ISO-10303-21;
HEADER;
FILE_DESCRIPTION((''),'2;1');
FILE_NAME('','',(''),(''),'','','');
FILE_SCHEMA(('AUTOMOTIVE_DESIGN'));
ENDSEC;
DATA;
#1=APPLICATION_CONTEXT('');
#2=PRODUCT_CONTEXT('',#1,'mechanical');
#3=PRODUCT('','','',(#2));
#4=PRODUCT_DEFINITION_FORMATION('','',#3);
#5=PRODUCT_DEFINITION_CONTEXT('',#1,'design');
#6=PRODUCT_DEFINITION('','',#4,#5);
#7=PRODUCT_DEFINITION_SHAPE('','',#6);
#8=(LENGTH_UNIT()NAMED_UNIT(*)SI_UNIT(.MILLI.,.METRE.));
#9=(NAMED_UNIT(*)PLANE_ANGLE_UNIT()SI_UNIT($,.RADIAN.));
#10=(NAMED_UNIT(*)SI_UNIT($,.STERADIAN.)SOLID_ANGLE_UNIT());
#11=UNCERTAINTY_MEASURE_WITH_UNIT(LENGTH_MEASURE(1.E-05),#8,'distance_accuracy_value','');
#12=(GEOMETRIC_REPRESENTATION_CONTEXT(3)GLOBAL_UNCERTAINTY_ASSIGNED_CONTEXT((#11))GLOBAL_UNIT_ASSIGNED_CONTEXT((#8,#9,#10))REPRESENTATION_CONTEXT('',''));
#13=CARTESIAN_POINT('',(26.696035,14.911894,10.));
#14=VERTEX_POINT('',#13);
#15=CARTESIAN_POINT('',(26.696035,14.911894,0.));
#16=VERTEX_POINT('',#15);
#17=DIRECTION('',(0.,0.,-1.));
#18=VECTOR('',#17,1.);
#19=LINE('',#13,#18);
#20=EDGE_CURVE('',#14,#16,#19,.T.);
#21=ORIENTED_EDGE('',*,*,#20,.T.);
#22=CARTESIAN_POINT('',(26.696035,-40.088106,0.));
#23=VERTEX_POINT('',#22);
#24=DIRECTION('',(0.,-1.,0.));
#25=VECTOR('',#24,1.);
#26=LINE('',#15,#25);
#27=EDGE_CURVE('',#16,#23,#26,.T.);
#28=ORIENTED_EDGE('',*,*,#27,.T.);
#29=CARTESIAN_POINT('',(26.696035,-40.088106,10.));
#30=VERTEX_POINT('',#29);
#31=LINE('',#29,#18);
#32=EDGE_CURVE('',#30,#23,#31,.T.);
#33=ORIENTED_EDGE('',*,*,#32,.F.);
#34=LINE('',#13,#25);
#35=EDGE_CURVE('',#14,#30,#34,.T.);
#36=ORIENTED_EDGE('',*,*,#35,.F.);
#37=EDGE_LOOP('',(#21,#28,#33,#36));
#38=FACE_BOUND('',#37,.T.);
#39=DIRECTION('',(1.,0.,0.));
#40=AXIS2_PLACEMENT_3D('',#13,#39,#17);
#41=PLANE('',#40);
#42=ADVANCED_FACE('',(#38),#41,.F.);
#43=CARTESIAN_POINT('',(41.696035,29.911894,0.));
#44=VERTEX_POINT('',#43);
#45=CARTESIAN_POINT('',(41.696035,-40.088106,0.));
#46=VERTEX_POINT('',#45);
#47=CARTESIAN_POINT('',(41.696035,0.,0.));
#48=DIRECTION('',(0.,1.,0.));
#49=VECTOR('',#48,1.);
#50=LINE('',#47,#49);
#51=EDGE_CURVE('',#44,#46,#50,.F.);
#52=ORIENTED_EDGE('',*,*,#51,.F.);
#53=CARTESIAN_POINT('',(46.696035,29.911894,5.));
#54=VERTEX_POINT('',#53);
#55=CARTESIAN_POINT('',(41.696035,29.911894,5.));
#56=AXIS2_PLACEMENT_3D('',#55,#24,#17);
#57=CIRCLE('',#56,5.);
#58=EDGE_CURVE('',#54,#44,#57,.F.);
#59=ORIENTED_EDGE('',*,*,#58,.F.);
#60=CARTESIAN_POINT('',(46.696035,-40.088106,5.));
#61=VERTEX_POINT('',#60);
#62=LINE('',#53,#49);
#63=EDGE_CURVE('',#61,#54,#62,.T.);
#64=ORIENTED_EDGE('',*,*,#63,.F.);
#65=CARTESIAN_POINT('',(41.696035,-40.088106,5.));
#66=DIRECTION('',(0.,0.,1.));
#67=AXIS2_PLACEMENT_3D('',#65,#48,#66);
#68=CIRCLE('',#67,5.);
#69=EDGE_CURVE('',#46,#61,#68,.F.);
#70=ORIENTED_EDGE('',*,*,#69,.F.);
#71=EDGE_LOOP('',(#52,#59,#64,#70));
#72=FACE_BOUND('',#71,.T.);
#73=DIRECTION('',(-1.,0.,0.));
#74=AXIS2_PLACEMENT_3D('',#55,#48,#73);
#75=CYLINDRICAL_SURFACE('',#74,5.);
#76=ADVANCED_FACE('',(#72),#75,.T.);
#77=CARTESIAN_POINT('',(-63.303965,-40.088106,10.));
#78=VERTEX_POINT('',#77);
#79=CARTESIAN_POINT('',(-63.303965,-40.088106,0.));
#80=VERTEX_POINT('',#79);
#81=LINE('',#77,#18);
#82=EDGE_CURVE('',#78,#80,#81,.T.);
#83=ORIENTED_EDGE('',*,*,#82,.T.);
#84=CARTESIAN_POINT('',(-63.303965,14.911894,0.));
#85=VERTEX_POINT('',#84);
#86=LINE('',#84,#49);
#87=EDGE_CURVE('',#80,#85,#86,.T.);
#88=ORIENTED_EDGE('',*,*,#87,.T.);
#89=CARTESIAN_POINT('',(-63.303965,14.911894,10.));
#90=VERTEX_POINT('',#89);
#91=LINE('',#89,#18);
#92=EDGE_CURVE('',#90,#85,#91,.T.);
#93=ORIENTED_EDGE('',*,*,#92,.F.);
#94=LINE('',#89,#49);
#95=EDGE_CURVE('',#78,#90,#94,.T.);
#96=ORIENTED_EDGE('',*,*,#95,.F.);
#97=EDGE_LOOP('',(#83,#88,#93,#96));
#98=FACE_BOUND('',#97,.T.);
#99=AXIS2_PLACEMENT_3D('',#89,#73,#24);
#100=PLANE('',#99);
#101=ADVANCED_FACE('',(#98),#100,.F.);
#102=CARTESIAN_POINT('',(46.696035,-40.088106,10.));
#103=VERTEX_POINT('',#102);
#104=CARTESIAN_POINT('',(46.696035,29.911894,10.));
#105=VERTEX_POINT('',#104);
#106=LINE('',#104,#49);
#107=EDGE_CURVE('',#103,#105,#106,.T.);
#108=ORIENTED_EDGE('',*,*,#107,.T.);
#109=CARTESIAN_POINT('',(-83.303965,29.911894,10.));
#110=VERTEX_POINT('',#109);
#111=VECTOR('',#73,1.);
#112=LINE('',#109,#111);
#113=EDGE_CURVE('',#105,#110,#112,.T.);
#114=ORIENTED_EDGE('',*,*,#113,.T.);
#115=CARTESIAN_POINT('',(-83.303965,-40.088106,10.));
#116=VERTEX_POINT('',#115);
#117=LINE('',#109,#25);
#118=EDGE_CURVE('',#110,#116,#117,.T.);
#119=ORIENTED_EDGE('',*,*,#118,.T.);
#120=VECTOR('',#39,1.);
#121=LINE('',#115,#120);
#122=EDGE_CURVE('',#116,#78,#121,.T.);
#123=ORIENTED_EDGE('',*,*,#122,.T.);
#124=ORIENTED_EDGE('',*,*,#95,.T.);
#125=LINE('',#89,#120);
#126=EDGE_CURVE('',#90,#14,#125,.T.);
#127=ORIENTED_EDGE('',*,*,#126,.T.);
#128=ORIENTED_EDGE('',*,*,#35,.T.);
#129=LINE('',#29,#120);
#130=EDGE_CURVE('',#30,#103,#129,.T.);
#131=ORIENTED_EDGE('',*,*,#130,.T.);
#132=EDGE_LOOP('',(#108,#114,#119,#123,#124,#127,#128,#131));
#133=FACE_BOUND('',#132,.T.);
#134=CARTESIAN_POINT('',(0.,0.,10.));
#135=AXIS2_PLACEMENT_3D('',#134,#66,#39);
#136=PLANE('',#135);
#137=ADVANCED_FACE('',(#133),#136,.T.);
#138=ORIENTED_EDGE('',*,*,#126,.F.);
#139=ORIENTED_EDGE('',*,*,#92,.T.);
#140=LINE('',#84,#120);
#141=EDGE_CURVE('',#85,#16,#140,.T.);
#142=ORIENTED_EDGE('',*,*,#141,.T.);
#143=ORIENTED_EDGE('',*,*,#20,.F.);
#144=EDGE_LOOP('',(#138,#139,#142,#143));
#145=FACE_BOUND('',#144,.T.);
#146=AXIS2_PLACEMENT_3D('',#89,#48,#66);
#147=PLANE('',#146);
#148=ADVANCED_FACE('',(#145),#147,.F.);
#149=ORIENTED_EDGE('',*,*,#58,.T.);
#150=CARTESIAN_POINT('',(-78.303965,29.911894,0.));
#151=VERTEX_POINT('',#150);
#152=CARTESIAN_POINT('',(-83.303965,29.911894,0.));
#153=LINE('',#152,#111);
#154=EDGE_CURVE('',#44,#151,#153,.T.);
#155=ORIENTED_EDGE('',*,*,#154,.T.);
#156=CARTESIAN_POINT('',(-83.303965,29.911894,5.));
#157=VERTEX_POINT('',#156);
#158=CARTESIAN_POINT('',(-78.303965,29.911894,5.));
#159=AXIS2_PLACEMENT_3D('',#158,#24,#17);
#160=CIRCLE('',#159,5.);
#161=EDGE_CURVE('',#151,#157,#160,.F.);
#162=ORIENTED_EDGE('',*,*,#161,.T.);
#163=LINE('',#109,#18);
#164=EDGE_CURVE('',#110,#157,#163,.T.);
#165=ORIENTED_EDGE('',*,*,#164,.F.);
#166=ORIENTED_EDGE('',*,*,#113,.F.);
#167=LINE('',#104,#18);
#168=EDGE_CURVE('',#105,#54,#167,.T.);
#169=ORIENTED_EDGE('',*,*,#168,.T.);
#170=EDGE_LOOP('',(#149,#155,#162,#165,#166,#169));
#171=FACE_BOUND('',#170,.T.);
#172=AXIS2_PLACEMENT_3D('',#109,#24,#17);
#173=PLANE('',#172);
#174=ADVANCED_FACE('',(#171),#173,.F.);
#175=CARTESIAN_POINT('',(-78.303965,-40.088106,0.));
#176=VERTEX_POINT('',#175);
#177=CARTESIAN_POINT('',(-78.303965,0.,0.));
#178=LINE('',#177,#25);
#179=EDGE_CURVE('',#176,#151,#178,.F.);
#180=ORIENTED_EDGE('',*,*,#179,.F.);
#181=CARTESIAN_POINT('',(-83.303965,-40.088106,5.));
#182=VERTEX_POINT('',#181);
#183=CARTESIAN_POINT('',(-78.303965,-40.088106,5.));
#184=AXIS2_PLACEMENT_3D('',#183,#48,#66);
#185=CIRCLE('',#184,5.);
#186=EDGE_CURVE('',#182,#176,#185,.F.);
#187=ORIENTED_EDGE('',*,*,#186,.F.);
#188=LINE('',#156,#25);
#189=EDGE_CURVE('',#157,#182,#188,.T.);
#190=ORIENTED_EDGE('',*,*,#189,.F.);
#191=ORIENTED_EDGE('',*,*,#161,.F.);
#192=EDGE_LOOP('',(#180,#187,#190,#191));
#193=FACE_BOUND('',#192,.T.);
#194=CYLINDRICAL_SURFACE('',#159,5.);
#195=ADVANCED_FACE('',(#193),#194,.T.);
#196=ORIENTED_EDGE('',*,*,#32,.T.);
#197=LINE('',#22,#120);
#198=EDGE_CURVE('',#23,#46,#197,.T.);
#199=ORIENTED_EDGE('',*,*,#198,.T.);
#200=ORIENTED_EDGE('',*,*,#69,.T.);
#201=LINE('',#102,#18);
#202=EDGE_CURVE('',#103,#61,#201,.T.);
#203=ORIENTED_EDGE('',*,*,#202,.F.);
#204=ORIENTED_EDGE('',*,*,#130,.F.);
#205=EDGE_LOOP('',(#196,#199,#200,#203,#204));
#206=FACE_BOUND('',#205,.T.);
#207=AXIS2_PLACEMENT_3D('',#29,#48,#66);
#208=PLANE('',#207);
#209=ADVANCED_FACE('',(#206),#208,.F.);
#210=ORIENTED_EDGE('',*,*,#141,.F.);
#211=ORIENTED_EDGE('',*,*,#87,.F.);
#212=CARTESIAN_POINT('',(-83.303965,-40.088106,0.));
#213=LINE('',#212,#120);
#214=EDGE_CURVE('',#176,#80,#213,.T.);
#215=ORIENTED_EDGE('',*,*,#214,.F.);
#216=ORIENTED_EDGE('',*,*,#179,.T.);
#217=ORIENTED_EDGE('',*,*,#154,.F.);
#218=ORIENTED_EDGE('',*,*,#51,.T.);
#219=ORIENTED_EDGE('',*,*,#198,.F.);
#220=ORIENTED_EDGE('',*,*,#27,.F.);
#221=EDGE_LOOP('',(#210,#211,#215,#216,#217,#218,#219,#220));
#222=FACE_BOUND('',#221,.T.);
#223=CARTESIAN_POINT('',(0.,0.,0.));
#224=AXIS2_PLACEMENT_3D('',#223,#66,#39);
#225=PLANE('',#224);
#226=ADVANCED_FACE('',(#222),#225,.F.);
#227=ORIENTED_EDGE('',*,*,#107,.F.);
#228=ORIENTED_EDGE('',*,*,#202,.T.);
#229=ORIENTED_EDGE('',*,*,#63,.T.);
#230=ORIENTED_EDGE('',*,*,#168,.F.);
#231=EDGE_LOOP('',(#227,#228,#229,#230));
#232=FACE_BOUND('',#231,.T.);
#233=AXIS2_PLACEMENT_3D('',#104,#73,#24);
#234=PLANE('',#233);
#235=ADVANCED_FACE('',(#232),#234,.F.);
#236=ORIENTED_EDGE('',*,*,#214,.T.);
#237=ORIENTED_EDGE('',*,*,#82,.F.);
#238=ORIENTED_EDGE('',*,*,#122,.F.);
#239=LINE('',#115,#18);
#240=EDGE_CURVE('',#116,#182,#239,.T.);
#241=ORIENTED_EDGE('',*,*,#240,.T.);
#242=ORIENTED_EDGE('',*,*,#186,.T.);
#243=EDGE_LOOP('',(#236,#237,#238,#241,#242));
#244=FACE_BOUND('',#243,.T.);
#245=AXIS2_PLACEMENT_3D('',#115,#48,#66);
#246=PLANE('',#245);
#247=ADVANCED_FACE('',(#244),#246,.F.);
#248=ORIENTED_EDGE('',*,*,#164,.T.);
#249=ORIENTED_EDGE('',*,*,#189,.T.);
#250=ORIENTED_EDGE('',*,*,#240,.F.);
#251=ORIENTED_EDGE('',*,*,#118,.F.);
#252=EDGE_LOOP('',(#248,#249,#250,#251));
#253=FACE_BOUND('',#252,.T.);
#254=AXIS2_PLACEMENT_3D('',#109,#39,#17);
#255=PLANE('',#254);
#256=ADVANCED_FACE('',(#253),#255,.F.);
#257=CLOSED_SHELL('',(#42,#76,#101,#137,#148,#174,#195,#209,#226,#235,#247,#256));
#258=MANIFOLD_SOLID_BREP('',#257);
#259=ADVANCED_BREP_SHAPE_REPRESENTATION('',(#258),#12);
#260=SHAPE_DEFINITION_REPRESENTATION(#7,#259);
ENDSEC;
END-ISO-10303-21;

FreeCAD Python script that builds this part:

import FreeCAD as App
import Part
import Sketcher
from FreeCAD import Vector
Q = App.Units.Quantity


def edges_at(feature, points):
    """Names of the edges that pass closest to the given points."""
    edges = feature.Shape.Edges
    near = lambda p: min(range(len(edges)), key=lambda i: edges[i].distToShape(Part.Vertex(*p))[0])
    return sorted({f"Edge{near(p) + 1}" for p in points})


def add_polygon(sketch, points):
    """Adds a closed chain of lines whose ends are joined by coincident constraints."""
    first, n = sketch.GeometryCount, len(points)
    for a, b in zip(points, points[1:] + points[:1]):
        sketch.addGeometry(Part.LineSegment(App.Vector(*a, 0), App.Vector(*b, 0)), False)
    for i in range(n):
        sketch.addConstraint(Sketcher.Constraint("Coincident", first + i, 2, first + (i + 1) % n, 1))

doc = App.newDocument("Part")
params = doc.addObject("Spreadsheet::Sheet", "Params")
for row, (alias, value) in enumerate([
    ("sketch1_width", "130 mm"),
    ("sketch1_width2", "20 mm"),
    ("sketch1_height", "70 mm"),
    ("sketch1_height2", "55 mm"),
    ("pad1_length", "10 mm"),
    ("fillet_radius", "5 mm"),
], start=1):
    params.set(f"A{row}", alias)
    params.set(f"B{row}", "=" + value)
    params.setAlias(f"B{row}", alias)

body = doc.addObject("PartDesign::Body", "Body")

sketch1 = body.newObject("Sketcher::SketchObject", "Sketch")
sketch1.AttachmentSupport = (doc.getObject("XY_Plane"), [""])
sketch1.MapMode = "FlatFace"
add_polygon(sketch1, [(47, 30), (-83, 30), (-83, -40), (-63, -40), (-63, 15), (27, 15), (27, -40), (47, -40)])
sketch1.addConstraint([
    Sketcher.Constraint("Horizontal", 0),
    Sketcher.Constraint("Vertical", 1),
    Sketcher.Constraint("Horizontal", 2),
    Sketcher.Constraint("Vertical", 3),
    Sketcher.Constraint("Horizontal", 4),
    Sketcher.Constraint("Vertical", 5),
    Sketcher.Constraint("Horizontal", 6),
    Sketcher.Constraint("Vertical", 7),
    Sketcher.Constraint("Horizontal", 2, 2, 5, 2),
    Sketcher.Constraint("Equal", 2, 6),
    Sketcher.Constraint("DistanceX", 0, 2, 0, 1, Q("130 mm")),
    Sketcher.Constraint("DistanceX", 2, 1, 2, 2, Q("20 mm")),
    Sketcher.Constraint("DistanceY", 1, 2, 1, 1, Q("70 mm")),
    Sketcher.Constraint("DistanceY", 3, 1, 3, 2, Q("55 mm")),
    Sketcher.Constraint("DistanceX", 0, 2, -1, 1, Q("83.303965 mm")),
    Sketcher.Constraint("DistanceY", -1, 1, 0, 2, Q("29.911894 mm")),
])
sketch1.setExpression("Constraints[18]", "Params.sketch1_width")
sketch1.setExpression("Constraints[19]", "Params.sketch1_width2")
sketch1.setExpression("Constraints[20]", "Params.sketch1_height")
sketch1.setExpression("Constraints[21]", "Params.sketch1_height2")
pad1 = body.newObject("PartDesign::Pad", "Pad")
pad1.Profile = sketch1
pad1.setExpression("Length", "Params.pad1_length")
doc.recompute()

fillet = body.newObject("PartDesign::Fillet", "Fillet")
fillet.Base = (pad1, edges_at(pad1, [(-83.304, -5.088, 0), (46.696, -5.088, 0)]))
fillet.setExpression("Radius", "Params.fillet_radius")

doc.recompute()
